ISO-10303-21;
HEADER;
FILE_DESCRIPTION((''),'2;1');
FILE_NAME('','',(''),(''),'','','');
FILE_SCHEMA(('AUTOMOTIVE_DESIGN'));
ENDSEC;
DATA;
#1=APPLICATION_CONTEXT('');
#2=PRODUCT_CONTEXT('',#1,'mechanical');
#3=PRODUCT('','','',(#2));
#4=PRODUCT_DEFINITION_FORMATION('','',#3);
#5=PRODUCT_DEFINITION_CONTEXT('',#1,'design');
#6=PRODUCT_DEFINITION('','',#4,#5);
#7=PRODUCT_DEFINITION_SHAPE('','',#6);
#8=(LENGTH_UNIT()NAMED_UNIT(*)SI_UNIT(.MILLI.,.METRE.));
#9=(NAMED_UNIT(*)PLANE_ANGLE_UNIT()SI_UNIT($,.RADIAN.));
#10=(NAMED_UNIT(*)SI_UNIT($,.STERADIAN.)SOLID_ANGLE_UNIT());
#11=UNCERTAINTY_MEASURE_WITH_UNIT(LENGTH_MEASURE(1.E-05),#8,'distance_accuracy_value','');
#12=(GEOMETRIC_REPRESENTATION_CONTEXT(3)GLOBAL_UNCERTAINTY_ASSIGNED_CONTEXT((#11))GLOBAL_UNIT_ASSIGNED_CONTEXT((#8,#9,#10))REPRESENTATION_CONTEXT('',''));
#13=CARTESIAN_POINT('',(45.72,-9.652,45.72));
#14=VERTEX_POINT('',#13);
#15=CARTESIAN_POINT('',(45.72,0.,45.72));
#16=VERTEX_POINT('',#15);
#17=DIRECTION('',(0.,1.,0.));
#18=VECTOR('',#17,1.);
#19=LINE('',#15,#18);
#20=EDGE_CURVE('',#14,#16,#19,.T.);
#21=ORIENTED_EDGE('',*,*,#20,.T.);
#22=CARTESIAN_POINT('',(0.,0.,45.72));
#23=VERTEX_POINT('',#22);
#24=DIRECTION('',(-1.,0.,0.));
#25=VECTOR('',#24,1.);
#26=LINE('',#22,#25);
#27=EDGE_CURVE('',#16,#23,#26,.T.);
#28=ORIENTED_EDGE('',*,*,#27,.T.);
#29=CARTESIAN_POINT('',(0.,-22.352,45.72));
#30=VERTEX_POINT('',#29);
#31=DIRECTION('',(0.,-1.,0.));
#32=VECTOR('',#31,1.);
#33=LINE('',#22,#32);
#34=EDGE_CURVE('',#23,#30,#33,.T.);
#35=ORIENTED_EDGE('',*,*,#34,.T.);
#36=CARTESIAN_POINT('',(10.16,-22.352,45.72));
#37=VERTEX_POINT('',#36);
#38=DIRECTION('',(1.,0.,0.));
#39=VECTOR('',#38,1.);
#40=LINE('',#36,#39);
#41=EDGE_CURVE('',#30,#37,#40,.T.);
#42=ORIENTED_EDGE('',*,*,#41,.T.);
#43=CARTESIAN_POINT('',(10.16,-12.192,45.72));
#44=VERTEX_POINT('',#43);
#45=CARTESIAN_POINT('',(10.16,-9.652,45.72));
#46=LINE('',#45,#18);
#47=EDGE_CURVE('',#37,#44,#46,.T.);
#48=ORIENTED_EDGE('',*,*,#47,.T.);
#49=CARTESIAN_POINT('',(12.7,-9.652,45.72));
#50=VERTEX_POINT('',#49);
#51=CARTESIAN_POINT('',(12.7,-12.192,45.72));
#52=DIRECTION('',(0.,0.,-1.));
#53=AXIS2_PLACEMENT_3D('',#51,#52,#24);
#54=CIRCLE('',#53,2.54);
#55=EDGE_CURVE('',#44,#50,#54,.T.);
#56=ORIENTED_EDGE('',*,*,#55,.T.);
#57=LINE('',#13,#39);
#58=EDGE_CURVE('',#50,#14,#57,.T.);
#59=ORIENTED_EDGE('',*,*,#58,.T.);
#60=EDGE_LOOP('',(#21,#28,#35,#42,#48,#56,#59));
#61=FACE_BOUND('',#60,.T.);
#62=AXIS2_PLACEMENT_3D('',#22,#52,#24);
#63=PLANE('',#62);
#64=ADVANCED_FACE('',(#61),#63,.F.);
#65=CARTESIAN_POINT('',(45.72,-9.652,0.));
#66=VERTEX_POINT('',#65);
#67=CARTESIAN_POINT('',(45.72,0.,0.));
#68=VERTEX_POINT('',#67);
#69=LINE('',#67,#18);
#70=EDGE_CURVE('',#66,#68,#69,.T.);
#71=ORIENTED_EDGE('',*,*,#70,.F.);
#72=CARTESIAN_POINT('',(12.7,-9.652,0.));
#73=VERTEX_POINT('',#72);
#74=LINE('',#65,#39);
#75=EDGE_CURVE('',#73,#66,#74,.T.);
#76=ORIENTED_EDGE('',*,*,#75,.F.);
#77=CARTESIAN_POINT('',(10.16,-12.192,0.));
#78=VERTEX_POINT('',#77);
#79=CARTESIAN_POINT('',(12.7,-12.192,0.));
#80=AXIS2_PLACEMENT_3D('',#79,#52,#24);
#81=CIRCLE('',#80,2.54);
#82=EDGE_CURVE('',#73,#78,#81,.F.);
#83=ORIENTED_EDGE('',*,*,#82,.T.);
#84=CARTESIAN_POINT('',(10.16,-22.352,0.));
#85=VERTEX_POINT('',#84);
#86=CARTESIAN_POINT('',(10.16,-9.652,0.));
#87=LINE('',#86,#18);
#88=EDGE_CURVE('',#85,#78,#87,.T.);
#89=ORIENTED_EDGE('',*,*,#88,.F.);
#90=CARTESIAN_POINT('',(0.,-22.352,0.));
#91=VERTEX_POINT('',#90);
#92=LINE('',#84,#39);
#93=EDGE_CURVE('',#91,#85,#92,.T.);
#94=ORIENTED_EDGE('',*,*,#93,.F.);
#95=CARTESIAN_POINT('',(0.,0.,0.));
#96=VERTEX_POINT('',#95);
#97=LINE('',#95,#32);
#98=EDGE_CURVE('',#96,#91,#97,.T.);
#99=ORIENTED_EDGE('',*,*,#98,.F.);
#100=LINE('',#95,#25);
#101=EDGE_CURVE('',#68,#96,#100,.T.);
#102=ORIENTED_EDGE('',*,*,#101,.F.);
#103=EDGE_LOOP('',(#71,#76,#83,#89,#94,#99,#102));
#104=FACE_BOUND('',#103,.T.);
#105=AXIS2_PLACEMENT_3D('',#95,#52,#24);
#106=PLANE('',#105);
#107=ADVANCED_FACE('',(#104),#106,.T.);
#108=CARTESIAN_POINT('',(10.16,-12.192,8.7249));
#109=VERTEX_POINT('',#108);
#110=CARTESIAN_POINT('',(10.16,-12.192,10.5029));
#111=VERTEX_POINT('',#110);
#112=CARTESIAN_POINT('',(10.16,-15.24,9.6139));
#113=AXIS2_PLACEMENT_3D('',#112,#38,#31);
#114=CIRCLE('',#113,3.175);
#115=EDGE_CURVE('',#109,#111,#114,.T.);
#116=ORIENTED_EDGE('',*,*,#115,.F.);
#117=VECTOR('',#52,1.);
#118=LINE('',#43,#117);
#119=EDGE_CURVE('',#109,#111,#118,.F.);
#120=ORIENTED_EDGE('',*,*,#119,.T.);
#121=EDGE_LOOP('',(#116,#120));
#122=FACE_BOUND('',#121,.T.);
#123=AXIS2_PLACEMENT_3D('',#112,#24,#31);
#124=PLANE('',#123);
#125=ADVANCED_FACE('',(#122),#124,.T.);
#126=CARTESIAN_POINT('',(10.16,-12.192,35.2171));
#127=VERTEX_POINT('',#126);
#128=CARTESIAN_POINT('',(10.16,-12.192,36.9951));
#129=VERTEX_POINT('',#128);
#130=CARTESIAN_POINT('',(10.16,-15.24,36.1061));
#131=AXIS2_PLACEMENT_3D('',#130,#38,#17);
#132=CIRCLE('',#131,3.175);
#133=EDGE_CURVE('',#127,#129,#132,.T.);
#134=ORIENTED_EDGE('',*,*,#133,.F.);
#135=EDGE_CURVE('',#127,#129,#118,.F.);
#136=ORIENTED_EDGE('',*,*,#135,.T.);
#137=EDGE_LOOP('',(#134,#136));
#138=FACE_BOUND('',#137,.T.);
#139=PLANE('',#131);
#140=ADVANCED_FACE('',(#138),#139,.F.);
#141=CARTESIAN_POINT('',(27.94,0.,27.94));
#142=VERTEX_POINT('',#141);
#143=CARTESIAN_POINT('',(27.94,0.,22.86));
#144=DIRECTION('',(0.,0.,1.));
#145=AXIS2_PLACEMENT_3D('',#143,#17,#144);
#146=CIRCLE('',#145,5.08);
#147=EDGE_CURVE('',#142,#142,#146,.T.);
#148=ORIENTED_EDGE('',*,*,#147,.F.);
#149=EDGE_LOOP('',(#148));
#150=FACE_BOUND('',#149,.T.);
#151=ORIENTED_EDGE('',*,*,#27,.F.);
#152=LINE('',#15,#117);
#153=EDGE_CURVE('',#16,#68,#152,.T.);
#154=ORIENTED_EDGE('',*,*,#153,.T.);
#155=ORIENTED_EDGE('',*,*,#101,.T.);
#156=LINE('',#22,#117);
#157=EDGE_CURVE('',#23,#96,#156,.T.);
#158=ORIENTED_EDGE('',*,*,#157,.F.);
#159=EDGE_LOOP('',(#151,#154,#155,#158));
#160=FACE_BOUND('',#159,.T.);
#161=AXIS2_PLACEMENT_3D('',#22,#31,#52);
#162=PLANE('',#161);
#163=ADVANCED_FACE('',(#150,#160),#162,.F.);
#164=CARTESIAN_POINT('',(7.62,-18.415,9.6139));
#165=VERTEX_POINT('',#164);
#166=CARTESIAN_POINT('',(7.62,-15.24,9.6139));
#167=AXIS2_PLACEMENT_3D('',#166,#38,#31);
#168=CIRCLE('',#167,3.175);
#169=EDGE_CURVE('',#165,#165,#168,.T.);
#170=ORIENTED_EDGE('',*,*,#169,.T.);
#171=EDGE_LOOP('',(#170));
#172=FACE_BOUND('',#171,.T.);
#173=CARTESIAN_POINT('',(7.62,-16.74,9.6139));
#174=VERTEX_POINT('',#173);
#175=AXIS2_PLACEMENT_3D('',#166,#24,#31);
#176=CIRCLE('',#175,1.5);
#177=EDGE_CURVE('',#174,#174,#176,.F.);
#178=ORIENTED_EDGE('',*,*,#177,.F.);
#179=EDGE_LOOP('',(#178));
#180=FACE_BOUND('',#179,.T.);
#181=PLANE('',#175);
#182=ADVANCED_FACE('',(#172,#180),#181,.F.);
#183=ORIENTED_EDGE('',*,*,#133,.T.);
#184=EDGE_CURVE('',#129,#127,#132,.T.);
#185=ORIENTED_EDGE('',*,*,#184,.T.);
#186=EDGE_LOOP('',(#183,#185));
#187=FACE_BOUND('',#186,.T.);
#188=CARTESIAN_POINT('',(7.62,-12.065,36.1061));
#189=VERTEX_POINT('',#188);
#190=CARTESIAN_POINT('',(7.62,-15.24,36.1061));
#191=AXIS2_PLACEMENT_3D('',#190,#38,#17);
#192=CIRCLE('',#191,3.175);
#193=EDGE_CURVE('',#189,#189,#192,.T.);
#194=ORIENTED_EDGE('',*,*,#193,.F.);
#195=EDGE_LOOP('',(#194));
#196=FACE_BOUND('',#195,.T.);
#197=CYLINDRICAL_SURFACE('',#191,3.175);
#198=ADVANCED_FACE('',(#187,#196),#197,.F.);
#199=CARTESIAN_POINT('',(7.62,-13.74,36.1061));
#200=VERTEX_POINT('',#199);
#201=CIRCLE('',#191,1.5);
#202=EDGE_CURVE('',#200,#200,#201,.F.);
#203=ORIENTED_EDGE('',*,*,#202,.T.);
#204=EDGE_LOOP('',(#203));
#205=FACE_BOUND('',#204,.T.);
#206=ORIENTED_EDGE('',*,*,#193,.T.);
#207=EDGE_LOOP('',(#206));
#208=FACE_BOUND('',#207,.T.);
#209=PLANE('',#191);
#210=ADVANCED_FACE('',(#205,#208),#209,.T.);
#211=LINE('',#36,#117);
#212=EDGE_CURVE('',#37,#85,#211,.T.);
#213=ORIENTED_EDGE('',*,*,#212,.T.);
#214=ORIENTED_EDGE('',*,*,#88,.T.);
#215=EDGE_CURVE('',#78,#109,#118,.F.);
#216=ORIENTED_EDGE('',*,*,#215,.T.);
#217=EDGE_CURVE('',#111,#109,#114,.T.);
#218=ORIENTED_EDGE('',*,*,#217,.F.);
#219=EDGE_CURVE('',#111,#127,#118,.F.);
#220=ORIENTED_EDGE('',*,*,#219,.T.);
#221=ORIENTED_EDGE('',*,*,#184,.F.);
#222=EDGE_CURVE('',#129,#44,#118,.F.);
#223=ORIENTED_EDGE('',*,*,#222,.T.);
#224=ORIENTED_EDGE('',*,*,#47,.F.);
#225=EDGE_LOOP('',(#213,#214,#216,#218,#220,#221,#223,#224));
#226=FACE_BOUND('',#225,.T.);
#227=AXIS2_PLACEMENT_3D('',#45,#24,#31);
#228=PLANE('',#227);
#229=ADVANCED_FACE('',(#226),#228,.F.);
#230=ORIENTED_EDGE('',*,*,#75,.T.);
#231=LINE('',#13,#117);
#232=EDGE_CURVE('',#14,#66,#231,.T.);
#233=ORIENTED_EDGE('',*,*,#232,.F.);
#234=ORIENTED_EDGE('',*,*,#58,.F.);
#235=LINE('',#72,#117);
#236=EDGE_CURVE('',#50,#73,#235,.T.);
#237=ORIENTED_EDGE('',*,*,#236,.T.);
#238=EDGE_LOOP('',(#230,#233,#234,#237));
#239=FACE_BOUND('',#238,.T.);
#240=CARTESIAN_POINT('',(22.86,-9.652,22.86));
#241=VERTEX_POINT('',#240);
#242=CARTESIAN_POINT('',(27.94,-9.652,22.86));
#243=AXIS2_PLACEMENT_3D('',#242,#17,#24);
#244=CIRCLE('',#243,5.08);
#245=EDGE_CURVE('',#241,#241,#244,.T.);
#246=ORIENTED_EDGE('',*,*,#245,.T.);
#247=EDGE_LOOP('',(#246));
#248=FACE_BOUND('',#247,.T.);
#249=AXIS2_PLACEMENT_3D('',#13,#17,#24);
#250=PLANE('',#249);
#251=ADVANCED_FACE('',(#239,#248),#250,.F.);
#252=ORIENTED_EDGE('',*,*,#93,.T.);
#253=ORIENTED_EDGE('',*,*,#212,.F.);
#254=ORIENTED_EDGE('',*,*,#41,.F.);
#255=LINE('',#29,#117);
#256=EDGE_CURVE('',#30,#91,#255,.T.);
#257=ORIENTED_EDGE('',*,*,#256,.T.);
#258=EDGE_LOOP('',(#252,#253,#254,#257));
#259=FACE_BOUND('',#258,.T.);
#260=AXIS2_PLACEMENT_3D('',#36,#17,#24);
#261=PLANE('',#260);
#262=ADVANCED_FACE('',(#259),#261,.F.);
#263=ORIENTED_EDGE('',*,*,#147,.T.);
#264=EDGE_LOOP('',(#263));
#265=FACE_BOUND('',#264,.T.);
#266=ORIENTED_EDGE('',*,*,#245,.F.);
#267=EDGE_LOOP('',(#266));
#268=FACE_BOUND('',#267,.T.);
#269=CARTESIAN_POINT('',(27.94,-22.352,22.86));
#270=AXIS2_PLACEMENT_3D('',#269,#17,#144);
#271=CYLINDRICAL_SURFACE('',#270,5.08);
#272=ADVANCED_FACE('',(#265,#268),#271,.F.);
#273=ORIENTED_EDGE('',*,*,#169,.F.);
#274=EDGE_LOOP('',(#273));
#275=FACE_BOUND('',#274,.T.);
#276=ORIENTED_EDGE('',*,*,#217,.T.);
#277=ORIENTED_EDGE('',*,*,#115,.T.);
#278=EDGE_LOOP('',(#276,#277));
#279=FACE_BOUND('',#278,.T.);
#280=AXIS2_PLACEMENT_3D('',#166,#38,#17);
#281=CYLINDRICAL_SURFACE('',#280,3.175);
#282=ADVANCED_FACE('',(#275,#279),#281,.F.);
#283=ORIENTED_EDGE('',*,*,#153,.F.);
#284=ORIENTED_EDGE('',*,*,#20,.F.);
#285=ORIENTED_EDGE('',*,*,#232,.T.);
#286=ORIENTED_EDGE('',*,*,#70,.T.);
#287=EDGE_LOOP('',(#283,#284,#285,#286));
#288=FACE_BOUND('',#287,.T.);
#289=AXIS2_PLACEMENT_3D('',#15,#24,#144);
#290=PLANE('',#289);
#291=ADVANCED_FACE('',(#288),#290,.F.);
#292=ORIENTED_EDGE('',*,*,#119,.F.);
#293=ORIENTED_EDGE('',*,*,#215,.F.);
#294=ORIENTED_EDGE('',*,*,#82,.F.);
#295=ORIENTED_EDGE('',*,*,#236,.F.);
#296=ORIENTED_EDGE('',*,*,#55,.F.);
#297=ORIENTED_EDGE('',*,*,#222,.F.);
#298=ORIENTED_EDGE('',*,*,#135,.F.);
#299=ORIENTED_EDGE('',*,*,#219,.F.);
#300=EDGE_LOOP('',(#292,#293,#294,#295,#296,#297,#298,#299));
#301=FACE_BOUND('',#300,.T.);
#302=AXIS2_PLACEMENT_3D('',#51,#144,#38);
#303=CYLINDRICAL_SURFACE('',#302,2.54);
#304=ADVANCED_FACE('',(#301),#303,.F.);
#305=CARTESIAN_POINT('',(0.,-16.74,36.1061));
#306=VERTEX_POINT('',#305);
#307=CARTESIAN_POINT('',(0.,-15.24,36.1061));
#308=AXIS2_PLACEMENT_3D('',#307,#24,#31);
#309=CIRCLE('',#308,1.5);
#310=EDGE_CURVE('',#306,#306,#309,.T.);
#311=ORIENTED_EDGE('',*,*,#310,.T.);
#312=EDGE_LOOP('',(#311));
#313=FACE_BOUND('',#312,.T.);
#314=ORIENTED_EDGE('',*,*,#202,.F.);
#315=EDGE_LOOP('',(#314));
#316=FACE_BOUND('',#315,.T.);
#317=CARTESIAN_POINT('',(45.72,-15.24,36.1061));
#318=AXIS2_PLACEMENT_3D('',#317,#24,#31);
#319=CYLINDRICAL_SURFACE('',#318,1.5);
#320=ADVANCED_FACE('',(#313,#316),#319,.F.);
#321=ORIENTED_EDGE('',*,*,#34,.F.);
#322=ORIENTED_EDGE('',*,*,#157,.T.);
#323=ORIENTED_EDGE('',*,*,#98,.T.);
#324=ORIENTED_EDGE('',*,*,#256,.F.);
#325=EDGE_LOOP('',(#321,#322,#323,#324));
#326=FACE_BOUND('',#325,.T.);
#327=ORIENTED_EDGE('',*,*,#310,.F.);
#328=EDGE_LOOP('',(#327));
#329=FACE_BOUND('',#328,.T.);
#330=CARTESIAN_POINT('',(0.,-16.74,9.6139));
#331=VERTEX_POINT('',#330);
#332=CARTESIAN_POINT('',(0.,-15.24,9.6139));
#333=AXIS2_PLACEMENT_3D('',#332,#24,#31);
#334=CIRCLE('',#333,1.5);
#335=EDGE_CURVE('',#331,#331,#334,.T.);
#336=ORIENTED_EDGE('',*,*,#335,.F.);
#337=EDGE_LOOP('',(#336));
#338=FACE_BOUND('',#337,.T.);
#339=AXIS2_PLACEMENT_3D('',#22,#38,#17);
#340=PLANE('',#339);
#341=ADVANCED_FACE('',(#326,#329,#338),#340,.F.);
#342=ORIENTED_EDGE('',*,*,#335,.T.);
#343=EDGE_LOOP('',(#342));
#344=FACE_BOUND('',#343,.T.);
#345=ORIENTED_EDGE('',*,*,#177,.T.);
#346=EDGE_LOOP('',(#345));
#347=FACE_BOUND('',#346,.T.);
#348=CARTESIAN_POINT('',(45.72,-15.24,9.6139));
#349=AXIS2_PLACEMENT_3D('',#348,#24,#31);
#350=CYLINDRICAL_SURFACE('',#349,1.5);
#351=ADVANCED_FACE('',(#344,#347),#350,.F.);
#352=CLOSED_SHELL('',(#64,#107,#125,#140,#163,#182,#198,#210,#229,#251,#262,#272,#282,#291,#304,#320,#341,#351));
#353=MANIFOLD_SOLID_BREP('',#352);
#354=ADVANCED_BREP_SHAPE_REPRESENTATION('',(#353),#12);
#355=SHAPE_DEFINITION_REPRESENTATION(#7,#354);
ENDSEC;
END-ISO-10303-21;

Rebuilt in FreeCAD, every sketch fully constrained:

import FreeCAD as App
import Part
import Sketcher
Q = App.Units.Quantity


def edges_at(feature, points):
    """Names of the edges that pass closest to the given points."""
    edges = feature.Shape.Edges
    near = lambda p: min(range(len(edges)), key=lambda i: edges[i].distToShape(Part.Vertex(*p))[0])
    return sorted({f"Edge{near(p) + 1}" for p in points})

doc = App.newDocument("Part")
body = doc.addObject("PartDesign::Body", "Body")

# Sketch on XY plane
sketch1 = doc.addObject("Sketcher::SketchObject", "Sketch")
body.addObject(sketch1)
sketch1.AttachmentSupport = (doc.XY_Plane, [""])
sketch1.MapMode = "FlatFace"
sketch1.addGeometry([
    Part.LineSegment(App.Vector(0, 0, 0), App.Vector(0, -22, 0)),  # 0
    Part.LineSegment(App.Vector(0, -22, 0), App.Vector(10, -22, 0)),  # 1
    Part.LineSegment(App.Vector(10, -22, 0), App.Vector(10, -10, 0)),  # 2
    Part.LineSegment(App.Vector(10, -10, 0), App.Vector(46, -10, 0)),  # 3
    Part.LineSegment(App.Vector(46, -10, 0), App.Vector(46, 0, 0)),  # 4
    Part.LineSegment(App.Vector(46, 0, 0), App.Vector(0, 0, 0)),  # 5
], False)
sketch1.addConstraint([
    Sketcher.Constraint("Coincident", 0, 2, 1, 1),
    Sketcher.Constraint("Coincident", 1, 2, 2, 1),
    Sketcher.Constraint("Coincident", 2, 2, 3, 1),
    Sketcher.Constraint("Coincident", 3, 2, 4, 1),
    Sketcher.Constraint("Coincident", 4, 2, 5, 1),
    Sketcher.Constraint("Coincident", 5, 2, 0, 1),
    Sketcher.Constraint("Vertical", 0),
    Sketcher.Constraint("Horizontal", 1),
    Sketcher.Constraint("Vertical", 2),
    Sketcher.Constraint("Horizontal", 3),
    Sketcher.Constraint("Vertical", 4),
    Sketcher.Constraint("Horizontal", 5),
    Sketcher.Constraint("Coincident", 5, 2, -1, 1),
    Sketcher.Constraint("DistanceX", 1, 1, 1, 2, Q("0.4 in")),
    Sketcher.Constraint("DistanceX", 3, 1, 3, 2, Q("1.4 in")),
    Sketcher.Constraint("DistanceY", 2, 1, 2, 2, Q("0.5 in")),
    Sketcher.Constraint("DistanceY", 0, 2, 0, 1, Q("0.88 in")),
])
pad1 = doc.addObject("PartDesign::Pad", "Pad")
body.addObject(pad1)
pad1.Profile = sketch1
pad1.Length = Q("1.8 in")

# Sketch on YZ plane
sketch2 = doc.addObject("Sketcher::SketchObject", "Sketch001")
body.addObject(sketch2)
sketch2.AttachmentSupport = (doc.YZ_Plane, [""])
sketch2.MapMode = "FlatFace"
sketch2.addGeometry([
    Part.Circle(App.Vector(-15.2, 9.6, 0), App.Vector(0, 0, 1), 1.5),
    Part.Circle(App.Vector(-15.2, 36.1, 0), App.Vector(0, 0, 1), 1.5),
], False)
sketch2.addConstraint([
    Sketcher.Constraint("Equal", 0, 1),
    Sketcher.Constraint("Vertical", 0, 3, 1, 3),
    Sketcher.Constraint("DistanceX", 0, 3, -1, 1, Q("0.6 in")),
    Sketcher.Constraint("Diameter", 0, 3.0),
    Sketcher.Constraint("DistanceY", 0, 3, 1, 3, Q("1.043 in")),
    Sketcher.Constraint("DistanceY", -1, 1, 0, 3, Q("0.3785 in")),
])
pocket1 = doc.addObject("PartDesign::Pocket", "Pocket")
body.addObject(pocket1)
pocket1.Profile = sketch2
pocket1.Length = Q("1.8 in")
pocket1.Reversed = True
doc.recompute()

fillet = doc.addObject("PartDesign::Fillet", "Fillet")
body.addObject(fillet)
fillet.Base = (pocket1, edges_at(pocket1, [(10.16, -9.652, 22.86)]))
fillet.Radius = Q("0.1 in")

# Sketch on YZ plane
sketch3 = doc.addObject("Sketcher::SketchObject", "Sketch002")
body.addObject(sketch3)
sketch3.AttachmentSupport = (doc.YZ_Plane, [""])
sketch3.MapMode = "FlatFace"
sketch3.AttachmentOffset = App.Placement(App.Vector(0, 0, 0.4 * 25.4), App.Rotation())
sketch3.addGeometry([
    Part.Circle(App.Vector(-15.2, 36.1, 0), App.Vector(0, 0, 1), 3.2),
    Part.Circle(App.Vector(-15.2, 9.6, 0), App.Vector(0, 0, 1), 3.2),
], False)
sketch3.addConstraint([
    Sketcher.Constraint("Equal", 0, 1),
    Sketcher.Constraint("Vertical", 0, 3, 1, 3),
    Sketcher.Constraint("Diameter", 0, Q("0.25 in")),
    Sketcher.Constraint("DistanceX", 0, 3, -1, 1, Q("0.6 in")),
    Sketcher.Constraint("DistanceY", 1, 3, 0, 3, Q("1.043 in")),
    Sketcher.Constraint("DistanceY", -1, 1, 0, 3, Q("1.4215 in")),
])
pocket2 = doc.addObject("PartDesign::Pocket", "Pocket001")
body.addObject(pocket2)
pocket2.Profile = sketch3
pocket2.Length = Q("0.1 in")

# Sketch on XZ plane
sketch4 = doc.addObject("Sketcher::SketchObject", "Sketch003")
body.addObject(sketch4)
sketch4.AttachmentSupport = (doc.XZ_Plane, [""])
sketch4.MapMode = "FlatFace"
sketch4.addGeometry(Part.Circle(App.Vector(28, 23, 0), App.Vector(0, 0, 1), 5), False)
sketch4.addConstraint([
    Sketcher.Constraint("Diameter", 0, Q("0.4 in")),
    Sketcher.Constraint("DistanceX", -1, 1, 0, 3, Q("1.1 in")),
    Sketcher.Constraint("DistanceY", -1, 1, 0, 3, Q("0.9 in")),
])
pocket3 = doc.addObject("PartDesign::Pocket", "Pocket002")
body.addObject(pocket3)
pocket3.Profile = sketch4
pocket3.Type = "ThroughAll"
pocket3.Reversed = True

doc.recompute()
